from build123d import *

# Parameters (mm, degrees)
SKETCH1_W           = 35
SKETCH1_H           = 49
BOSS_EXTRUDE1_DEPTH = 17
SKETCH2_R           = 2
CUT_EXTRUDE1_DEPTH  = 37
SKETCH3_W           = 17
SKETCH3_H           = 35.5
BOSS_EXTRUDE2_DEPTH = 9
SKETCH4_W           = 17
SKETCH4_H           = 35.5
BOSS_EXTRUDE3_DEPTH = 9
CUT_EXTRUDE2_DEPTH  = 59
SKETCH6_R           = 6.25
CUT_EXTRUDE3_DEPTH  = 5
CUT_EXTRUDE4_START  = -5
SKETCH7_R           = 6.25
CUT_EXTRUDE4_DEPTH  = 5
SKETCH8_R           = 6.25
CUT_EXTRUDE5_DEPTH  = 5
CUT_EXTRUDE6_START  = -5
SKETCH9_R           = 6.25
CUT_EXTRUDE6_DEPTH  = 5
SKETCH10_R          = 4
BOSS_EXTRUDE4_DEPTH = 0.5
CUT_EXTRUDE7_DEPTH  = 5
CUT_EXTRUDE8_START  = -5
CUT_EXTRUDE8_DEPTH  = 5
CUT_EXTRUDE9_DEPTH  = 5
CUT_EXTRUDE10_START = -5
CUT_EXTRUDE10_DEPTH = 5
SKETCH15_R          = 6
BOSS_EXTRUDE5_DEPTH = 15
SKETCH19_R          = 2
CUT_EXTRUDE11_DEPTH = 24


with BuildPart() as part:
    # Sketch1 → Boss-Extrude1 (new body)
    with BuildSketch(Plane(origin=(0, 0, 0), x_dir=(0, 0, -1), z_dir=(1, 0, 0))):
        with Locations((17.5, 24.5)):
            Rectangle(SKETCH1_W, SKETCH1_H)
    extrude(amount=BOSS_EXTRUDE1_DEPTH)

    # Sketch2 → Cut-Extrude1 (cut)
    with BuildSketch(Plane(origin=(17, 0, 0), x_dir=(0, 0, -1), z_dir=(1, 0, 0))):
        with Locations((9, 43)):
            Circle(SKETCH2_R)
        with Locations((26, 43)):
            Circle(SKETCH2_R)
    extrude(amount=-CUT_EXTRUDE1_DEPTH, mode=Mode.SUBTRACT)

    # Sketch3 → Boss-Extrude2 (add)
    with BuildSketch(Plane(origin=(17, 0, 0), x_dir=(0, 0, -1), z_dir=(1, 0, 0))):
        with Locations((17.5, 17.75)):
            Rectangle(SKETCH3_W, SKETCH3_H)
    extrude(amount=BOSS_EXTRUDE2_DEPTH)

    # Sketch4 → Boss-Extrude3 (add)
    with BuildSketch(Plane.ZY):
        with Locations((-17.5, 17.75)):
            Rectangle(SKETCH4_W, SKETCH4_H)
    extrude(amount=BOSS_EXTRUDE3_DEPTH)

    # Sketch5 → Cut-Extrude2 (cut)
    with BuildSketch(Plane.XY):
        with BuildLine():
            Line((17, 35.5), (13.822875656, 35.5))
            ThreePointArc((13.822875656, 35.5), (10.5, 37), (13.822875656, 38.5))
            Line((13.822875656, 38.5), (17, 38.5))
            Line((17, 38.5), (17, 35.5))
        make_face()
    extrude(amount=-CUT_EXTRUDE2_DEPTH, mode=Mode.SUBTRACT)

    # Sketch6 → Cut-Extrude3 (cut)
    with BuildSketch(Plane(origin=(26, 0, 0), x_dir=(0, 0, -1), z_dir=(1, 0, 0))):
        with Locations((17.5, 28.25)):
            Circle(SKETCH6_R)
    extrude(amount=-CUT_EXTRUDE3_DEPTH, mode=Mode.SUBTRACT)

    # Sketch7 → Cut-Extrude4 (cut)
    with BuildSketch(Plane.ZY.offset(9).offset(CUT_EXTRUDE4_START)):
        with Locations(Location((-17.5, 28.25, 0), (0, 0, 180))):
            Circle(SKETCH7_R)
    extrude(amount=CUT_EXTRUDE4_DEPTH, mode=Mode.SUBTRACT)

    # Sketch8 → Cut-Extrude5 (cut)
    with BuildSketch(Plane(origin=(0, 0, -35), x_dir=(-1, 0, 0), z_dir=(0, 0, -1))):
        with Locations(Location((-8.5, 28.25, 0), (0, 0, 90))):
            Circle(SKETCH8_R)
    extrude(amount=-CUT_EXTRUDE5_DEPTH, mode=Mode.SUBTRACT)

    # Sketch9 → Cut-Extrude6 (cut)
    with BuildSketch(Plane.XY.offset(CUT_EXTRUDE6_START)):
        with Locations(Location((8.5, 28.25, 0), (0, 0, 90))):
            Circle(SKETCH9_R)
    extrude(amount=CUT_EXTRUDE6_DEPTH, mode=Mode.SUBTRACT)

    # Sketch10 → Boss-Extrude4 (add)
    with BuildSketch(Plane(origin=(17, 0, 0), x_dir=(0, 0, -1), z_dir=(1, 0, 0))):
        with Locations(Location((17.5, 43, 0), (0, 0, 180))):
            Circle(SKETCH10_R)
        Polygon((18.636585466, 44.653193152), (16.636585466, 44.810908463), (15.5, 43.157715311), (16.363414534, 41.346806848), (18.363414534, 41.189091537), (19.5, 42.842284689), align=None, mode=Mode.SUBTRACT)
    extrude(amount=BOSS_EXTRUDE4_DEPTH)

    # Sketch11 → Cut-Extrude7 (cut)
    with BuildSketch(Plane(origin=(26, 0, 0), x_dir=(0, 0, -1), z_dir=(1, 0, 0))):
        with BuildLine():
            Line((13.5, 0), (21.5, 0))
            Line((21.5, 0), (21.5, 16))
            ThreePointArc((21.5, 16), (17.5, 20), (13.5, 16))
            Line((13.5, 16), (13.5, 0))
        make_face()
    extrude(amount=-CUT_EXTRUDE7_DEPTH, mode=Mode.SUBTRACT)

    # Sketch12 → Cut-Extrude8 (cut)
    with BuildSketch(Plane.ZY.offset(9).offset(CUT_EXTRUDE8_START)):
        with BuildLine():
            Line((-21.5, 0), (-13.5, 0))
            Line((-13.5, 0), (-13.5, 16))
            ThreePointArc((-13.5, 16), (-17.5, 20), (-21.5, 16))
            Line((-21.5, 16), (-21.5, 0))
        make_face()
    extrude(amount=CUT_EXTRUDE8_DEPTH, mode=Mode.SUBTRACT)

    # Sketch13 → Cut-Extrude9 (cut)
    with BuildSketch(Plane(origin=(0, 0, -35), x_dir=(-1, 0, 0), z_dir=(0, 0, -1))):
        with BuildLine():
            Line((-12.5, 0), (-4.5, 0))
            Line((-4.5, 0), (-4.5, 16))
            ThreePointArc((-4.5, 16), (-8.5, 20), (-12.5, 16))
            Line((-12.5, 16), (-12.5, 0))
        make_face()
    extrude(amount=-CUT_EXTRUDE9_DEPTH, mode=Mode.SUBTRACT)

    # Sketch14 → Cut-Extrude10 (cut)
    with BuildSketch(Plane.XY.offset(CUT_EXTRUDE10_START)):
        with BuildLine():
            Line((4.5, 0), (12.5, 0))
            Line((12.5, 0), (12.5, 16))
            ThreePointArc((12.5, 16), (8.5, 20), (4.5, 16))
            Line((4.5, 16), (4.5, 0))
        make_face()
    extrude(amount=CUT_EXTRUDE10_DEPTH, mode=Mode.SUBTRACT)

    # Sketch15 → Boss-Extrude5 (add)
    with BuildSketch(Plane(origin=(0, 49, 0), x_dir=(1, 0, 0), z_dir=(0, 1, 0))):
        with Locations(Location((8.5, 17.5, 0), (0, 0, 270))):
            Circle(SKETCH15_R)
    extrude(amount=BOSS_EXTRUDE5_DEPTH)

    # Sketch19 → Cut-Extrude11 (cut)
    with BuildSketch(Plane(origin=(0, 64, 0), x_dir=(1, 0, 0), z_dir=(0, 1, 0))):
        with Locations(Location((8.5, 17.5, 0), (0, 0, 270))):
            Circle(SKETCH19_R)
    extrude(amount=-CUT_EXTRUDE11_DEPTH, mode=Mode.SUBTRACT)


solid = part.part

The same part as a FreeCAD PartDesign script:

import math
import FreeCAD as App
import Part
import Sketcher
from FreeCAD import Vector


def add_polygon(sketch, points):
    """Adds a closed chain of lines whose ends are joined by coincident constraints."""
    first, n = sketch.GeometryCount, len(points)
    for a, b in zip(points, points[1:] + points[:1]):
        sketch.addGeometry(Part.LineSegment(App.Vector(*a, 0), App.Vector(*b, 0)), False)
    for i in range(n):
        sketch.addConstraint(Sketcher.Constraint("Coincident", first + i, 2, first + (i + 1) % n, 1))

doc = App.newDocument("Part")
body = doc.addObject("PartDesign::Body", "Body")

sketch1 = body.newObject("Sketcher::SketchObject", "Sketch")
sketch1.AttachmentSupport = (doc.getObject("YZ_Plane"), [""])
sketch1.MapMode = "FlatFace"
add_polygon(sketch1, [(49, 0), (0, 0), (0, -35), (49, -35)])
sketch1.addConstraint([
    Sketcher.Constraint("Horizontal", 0),
    Sketcher.Constraint("Vertical", 1),
    Sketcher.Constraint("Horizontal", 2),
    Sketcher.Constraint("Vertical", 3),
    Sketcher.Constraint("Coincident", 0, 2, -1, 1),
    Sketcher.Constraint("DistanceX", 0, 2, 0, 1, 49.0),
    Sketcher.Constraint("DistanceY", 1, 2, 1, 1, 35.0),
])
pad1 = body.newObject("PartDesign::Pad", "Pad")
pad1.Profile = sketch1
pad1.Length = 17

sketch2 = body.newObject("Sketcher::SketchObject", "Sketch001")
sketch2.AttachmentSupport = (doc.getObject("YZ_Plane"), [""])
sketch2.MapMode = "FlatFace"
sketch2.AttachmentOffset = App.Placement(Vector(0, 0, 17), App.Rotation())
sketch2.addGeometry([
    Part.Circle(Vector(43, -9, 0), Vector(0, 0, 1), 2),
    Part.Circle(Vector(43, -26, 0), Vector(0, 0, 1), 2),
], False)
sketch2.addConstraint([
    Sketcher.Constraint("Equal", 0, 1),
    Sketcher.Constraint("Vertical", 0, 3, 1, 3),
    Sketcher.Constraint("Diameter", 0, 4.0),
    Sketcher.Constraint("DistanceX", -1, 1, 0, 3, 43.0),
    Sketcher.Constraint("DistanceY", 0, 3, -1, 1, 9.0),
    Sketcher.Constraint("DistanceY", 1, 3, -1, 1, 26.0),
])
pocket1 = body.newObject("PartDesign::Pocket", "Pocket")
pocket1.Profile = sketch2
pocket1.Length = 37

sketch3 = body.newObject("Sketcher::SketchObject", "Sketch002")
sketch3.AttachmentSupport = (doc.getObject("YZ_Plane"), [""])
sketch3.MapMode = "FlatFace"
sketch3.AttachmentOffset = App.Placement(Vector(0, 0, 17), App.Rotation())
add_polygon(sketch3, [(35.5, -9), (0, -9), (0, -26), (35.5, -26)])
sketch3.addConstraint([
    Sketcher.Constraint("Horizontal", 0),
    Sketcher.Constraint("Vertical", 1),
    Sketcher.Constraint("Horizontal", 2),
    Sketcher.Constraint("Vertical", 3),
    Sketcher.Constraint("PointOnObject", 0, 2, -2),
    Sketcher.Constraint("DistanceY", 1, 2, 1, 1, 17.0),
    Sketcher.Constraint("DistanceX", 0, 2, 0, 1, 35.5),
    Sketcher.Constraint("DistanceY", 0, 2, -1, 1, 9.0),
])
pad2 = body.newObject("PartDesign::Pad", "Pad001")
pad2.Profile = sketch3
pad2.Length = 9

sketch4 = body.newObject("Sketcher::SketchObject", "Sketch003")
sketch4.AttachmentSupport = (doc.getObject("YZ_Plane"), [""])
sketch4.MapMode = "FlatFace"
add_polygon(sketch4, [(35.5, -26), (0, -26), (0, -9), (35.5, -9)])
sketch4.addConstraint([
    Sketcher.Constraint("Horizontal", 0),
    Sketcher.Constraint("Vertical", 1),
    Sketcher.Constraint("Horizontal", 2),
    Sketcher.Constraint("Vertical", 3),
    Sketcher.Constraint("PointOnObject", 0, 2, -2),
    Sketcher.Constraint("DistanceY", 1, 1, 1, 2, 17.0),
    Sketcher.Constraint("DistanceX", 0, 2, 0, 1, 35.5),
    Sketcher.Constraint("DistanceY", 0, 2, -1, 1, 26.0),
])
pad3 = body.newObject("PartDesign::Pad", "Pad002")
pad3.Profile = sketch4
pad3.Length = 9
pad3.Reversed = True

sketch5 = body.newObject("Sketcher::SketchObject", "Sketch004")
sketch5.AttachmentSupport = (doc.getObject("XY_Plane"), [""])
sketch5.MapMode = "FlatFace"
sketch5.addGeometry([
    Part.LineSegment(Vector(13.822876, 35.5, 0), Vector(17, 35.5, 0)),
    Part.LineSegment(Vector(17, 35.5, 0), Vector(17, 38.5, 0)),
    Part.LineSegment(Vector(17, 38.5, 0), Vector(13.822876, 38.5, 0)),
    Part.ArcOfCircle(Part.Circle(Vector(12.5, 37, 0), Vector(0, 0, 1), 2), math.radians(48.590378), math.radians(311.409622)),
], False)
sketch5.addConstraint([
    Sketcher.Constraint("Coincident", 0, 2, 1, 1),
    Sketcher.Constraint("Coincident", 1, 2, 2, 1),
    Sketcher.Constraint("Coincident", 2, 2, 3, 1),
    Sketcher.Constraint("Coincident", 3, 2, 0, 1),
    Sketcher.Constraint("Horizontal", 0),
    Sketcher.Constraint("Vertical", 1),
    Sketcher.Constraint("Horizontal", 2),
    Sketcher.Constraint("Vertical", 2, 2, 3, 2),
    Sketcher.Constraint("Radius", 3, 2.0),
    Sketcher.Constraint("DistanceY", 1, 1, 1, 2, 3.0),
    Sketcher.Constraint("DistanceY", -1, 1, 3, 3, 37.0),
    Sketcher.Constraint("DistanceX", -1, 1, 0, 2, 17.0),
    Sketcher.Constraint("DistanceX", -1, 1, 3, 3, 12.5),
])
pocket2 = body.newObject("PartDesign::Pocket", "Pocket001")
pocket2.Profile = sketch5
pocket2.Length = 59

sketch6 = body.newObject("Sketcher::SketchObject", "Sketch005")
sketch6.AttachmentSupport = (doc.getObject("YZ_Plane"), [""])
sketch6.MapMode = "FlatFace"
sketch6.AttachmentOffset = App.Placement(Vector(0, 0, 26), App.Rotation())
sketch6.addGeometry(Part.Circle(Vector(28.25, -17.5, 0), Vector(0, 0, 1), 6.25), False)
sketch6.addConstraint([
    Sketcher.Constraint("Diameter", 0, 12.5),
    Sketcher.Constraint("DistanceY", 0, 3, -1, 1, 17.5),
    Sketcher.Constraint("DistanceX", -1, 1, 0, 3, 28.25),
])
pocket3 = body.newObject("PartDesign::Pocket", "Pocket002")
pocket3.Profile = sketch6
pocket3.Length = 5

sketch7 = body.newObject("Sketcher::SketchObject", "Sketch006")
sketch7.AttachmentSupport = (doc.getObject("YZ_Plane"), [""])
sketch7.MapMode = "FlatFace"
sketch7.AttachmentOffset = App.Placement(Vector(0, 0, -4), App.Rotation())
sketch7.addGeometry(Part.Circle(Vector(28.25, -17.5, 0), Vector(0, 0, 1), 6.25), False)
sketch7.addConstraint([
    Sketcher.Constraint("Diameter", 0, 12.5),
    Sketcher.Constraint("DistanceY", 0, 3, -1, 1, 17.5),
    Sketcher.Constraint("DistanceX", -1, 1, 0, 3, 28.25),
])
pocket4 = body.newObject("PartDesign::Pocket", "Pocket003")
pocket4.Profile = sketch7
pocket4.Length = 5

sketch8 = body.newObject("Sketcher::SketchObject", "Sketch007")
sketch8.AttachmentSupport = (doc.getObject("XY_Plane"), [""])
sketch8.MapMode = "FlatFace"
sketch8.AttachmentOffset = App.Placement(Vector(0, 0, -35), App.Rotation())
sketch8.addGeometry(Part.Circle(Vector(8.5, 28.25, 0), Vector(0, 0, 1), 6.25), False)
sketch8.addConstraint([
    Sketcher.Constraint("Diameter", 0, 12.5),
    Sketcher.Constraint("DistanceX", -1, 1, 0, 3, 8.5),
    Sketcher.Constraint("DistanceY", -1, 1, 0, 3, 28.25),
])
pocket5 = body.newObject("PartDesign::Pocket", "Pocket004")
pocket5.Profile = sketch8
pocket5.Length = 5
pocket5.Reversed = True

sketch9 = body.newObject("Sketcher::SketchObject", "Sketch008")
sketch9.AttachmentSupport = (doc.getObject("XY_Plane"), [""])
sketch9.MapMode = "FlatFace"
sketch9.AttachmentOffset = App.Placement(Vector(0, 0, -5), App.Rotation())
sketch9.addGeometry(Part.Circle(Vector(8.5, 28.25, 0), Vector(0, 0, 1), 6.25), False)
sketch9.addConstraint([
    Sketcher.Constraint("Diameter", 0, 12.5),
    Sketcher.Constraint("DistanceX", -1, 1, 0, 3, 8.5),
    Sketcher.Constraint("DistanceY", -1, 1, 0, 3, 28.25),
])
pocket6 = body.newObject("PartDesign::Pocket", "Pocket005")
pocket6.Profile = sketch9
pocket6.Length = 5
pocket6.Reversed = True

sketch10 = body.newObject("Sketcher::SketchObject", "Sketch009")
sketch10.AttachmentSupport = (doc.getObject("YZ_Plane"), [""])
sketch10.MapMode = "FlatFace"
sketch10.AttachmentOffset = App.Placement(Vector(0, 0, 17), App.Rotation())
sketch10.addGeometry(Part.Circle(Vector(43, -17.5, 0), Vector(0, 0, 1), 4), False)
add_polygon(sketch10, [(44.810908, -16.636585), (44.653193, -18.636585), (42.842285, -19.5), (41.189092, -18.363415), (41.346807, -16.363415), (43.157715, -15.5)])
sketch10.addConstraint([
    Sketcher.Constraint("Parallel", 1, 4),
    Sketcher.Constraint("Parallel", 2, 5),
    Sketcher.Constraint("Parallel", 3, 6),
    Sketcher.Constraint("Equal", 1, 2),
    Sketcher.Constraint("Equal", 2, 3),
    Sketcher.Constraint("Equal", 3, 4),
    Sketcher.Constraint("Diameter", 0, 8.0),
    Sketcher.Constraint("DistanceX", -1, 1, 0, 3, 43.0),
    Sketcher.Constraint("DistanceY", 2, 2, 0, 3, 2.0),
    Sketcher.Constraint("DistanceY", 3, 2, 4, 2, 2.0),
    Sketcher.Constraint("DistanceY", 0, 3, 5, 2, 2.0),
    Sketcher.Constraint("DistanceY", 0, 3, -1, 1, 17.5),
    Sketcher.Constraint("DistanceX", 3, 2, 1, 2, 3.464102),
    Sketcher.Constraint("Distance", 1, 2.006209),
    Sketcher.Constraint("DistanceX", -1, 1, 3, 2, 41.189092),
])
pad4 = body.newObject("PartDesign::Pad", "Pad003")
pad4.Profile = sketch10
pad4.Length = 0.5

sketch11 = body.newObject("Sketcher::SketchObject", "Sketch010")
sketch11.AttachmentSupport = (doc.getObject("YZ_Plane"), [""])
sketch11.MapMode = "FlatFace"
sketch11.AttachmentOffset = App.Placement(Vector(0, 0, 26), App.Rotation())
sketch11.addGeometry([
    Part.LineSegment(Vector(0, -13.5, 0), Vector(0, -21.5, 0)),
    Part.LineSegment(Vector(0, -21.5, 0), Vector(16, -21.5, 0)),
    Part.ArcOfCircle(Part.Circle(Vector(16, -17.5, 0), Vector(0, 0, 1), 4), math.radians(-90), math.radians(90)),
    Part.LineSegment(Vector(16, -13.5, 0), Vector(0, -13.5, 0)),
], False)
sketch11.addConstraint([
    Sketcher.Constraint("Coincident", 0, 2, 1, 1),
    Sketcher.Constraint("Tangent", 1, 2, 2, 1),
    Sketcher.Constraint("Tangent", 2, 2, 3, 1),
    Sketcher.Constraint("Coincident", 3, 2, 0, 1),
    Sketcher.Constraint("Vertical", 0),
    Sketcher.Constraint("Horizontal", 1),
    Sketcher.Constraint("Horizontal", 3),
    Sketcher.Constraint("PointOnObject", 0, 2, -2),
    Sketcher.Constraint("Radius", 2, 4.0),
    Sketcher.Constraint("DistanceX", 1, 1, 1, 2, 16.0),
    Sketcher.Constraint("DistanceY", 2, 3, -1, 1, 17.5),
])
pocket7 = body.newObject("PartDesign::Pocket", "Pocket006")
pocket7.Profile = sketch11
pocket7.Length = 5

sketch12 = body.newObject("Sketcher::SketchObject", "Sketch011")
sketch12.AttachmentSupport = (doc.getObject("YZ_Plane"), [""])
sketch12.MapMode = "FlatFace"
sketch12.AttachmentOffset = App.Placement(Vector(0, 0, -4), App.Rotation())
sketch12.addGeometry([
    Part.LineSegment(Vector(0, -21.5, 0), Vector(0, -13.5, 0)),
    Part.LineSegment(Vector(0, -13.5, 0), Vector(16, -13.5, 0)),
    Part.ArcOfCircle(Part.Circle(Vector(16, -17.5, 0), Vector(0, 0, 1), 4), math.radians(-90), math.radians(90)),
    Part.LineSegment(Vector(16, -21.5, 0), Vector(0, -21.5, 0)),
], False)
sketch12.addConstraint([
    Sketcher.Constraint("Coincident", 0, 2, 1, 1),
    Sketcher.Constraint("Tangent", 1, 2, 2, 2),
    Sketcher.Constraint("Tangent", 2, 1, 3, 1),
    Sketcher.Constraint("Coincident", 3, 2, 0, 1),
    Sketcher.Constraint("Vertical", 0),
    Sketcher.Constraint("Horizontal", 1),
    Sketcher.Constraint("Horizontal", 3),
    Sketcher.Constraint("PointOnObject", 0, 2, -2),
    Sketcher.Constraint("Radius", 2, 4.0),
    Sketcher.Constraint("DistanceX", 1, 1, 1, 2, 16.0),
    Sketcher.Constraint("DistanceY", 2, 3, -1, 1, 17.5),
])
pocket8 = body.newObject("PartDesign::Pocket", "Pocket007")
pocket8.Profile = sketch12
pocket8.Length = 5

sketch13 = body.newObject("Sketcher::SketchObject", "Sketch012")
sketch13.AttachmentSupport = (doc.getObject("XY_Plane"), [""])
sketch13.MapMode = "FlatFace"
sketch13.AttachmentOffset = App.Placement(Vector(0, 0, -35), App.Rotation())
sketch13.addGeometry([
    Part.LineSegment(Vector(12.5, 0, 0), Vector(4.5, 0, 0)),
    Part.LineSegment(Vector(4.5, 0, 0), Vector(4.5, 16, 0)),
    Part.ArcOfCircle(Part.Circle(Vector(8.5, 16, 0), Vector(0, 0, 1), 4), math.radians(0), math.radians(180)),
    Part.LineSegment(Vector(12.5, 16, 0), Vector(12.5, 0, 0)),
], False)
sketch13.addConstraint([
    Sketcher.Constraint("Coincident", 0, 2, 1, 1),
    Sketcher.Constraint("Tangent", 1, 2, 2, 2),
    Sketcher.Constraint("Tangent", 2, 1, 3, 1),
    Sketcher.Constraint("Coincident", 3, 2, 0, 1),
    Sketcher.Constraint("Horizontal", 0),
    Sketcher.Constraint("Vertical", 1),
    Sketcher.Constraint("Vertical", 3),
    Sketcher.Constraint("PointOnObject", 0, 2, -1),
    Sketcher.Constraint("Radius", 2, 4.0),
    Sketcher.Constraint("DistanceY", 1, 1, 1, 2, 16.0),
    Sketcher.Constraint("DistanceX", -1, 1, 2, 3, 8.5),
])
pocket9 = body.newObject("PartDesign::Pocket", "Pocket008")
pocket9.Profile = sketch13
pocket9.Length = 5
pocket9.Reversed = True

sketch14 = body.newObject("Sketcher::SketchObject", "Sketch013")
sketch14.AttachmentSupport = (doc.getObject("XY_Plane"), [""])
sketch14.MapMode = "FlatFace"
sketch14.AttachmentOffset = App.Placement(Vector(0, 0, -5), App.Rotation())
sketch14.addGeometry([
    Part.LineSegment(Vector(4.5, 0, 0), Vector(12.5, 0, 0)),
    Part.LineSegment(Vector(12.5, 0, 0), Vector(12.5, 16, 0)),
    Part.ArcOfCircle(Part.Circle(Vector(8.5, 16, 0), Vector(0, 0, 1), 4), math.radians(0), math.radians(180)),
    Part.LineSegment(Vector(4.5, 16, 0), Vector(4.5, 0, 0)),
], False)
sketch14.addConstraint([
    Sketcher.Constraint("Coincident", 0, 2, 1, 1),
    Sketcher.Constraint("Tangent", 1, 2, 2, 1),
    Sketcher.Constraint("Tangent", 2, 2, 3, 1),
    Sketcher.Constraint("Coincident", 3, 2, 0, 1),
    Sketcher.Constraint("Horizontal", 0),
    Sketcher.Constraint("Vertical", 1),
    Sketcher.Constraint("Vertical", 3),
    Sketcher.Constraint("PointOnObject", 0, 2, -1),
    Sketcher.Constraint("Radius", 2, 4.0),
    Sketcher.Constraint("DistanceY", 1, 1, 1, 2, 16.0),
    Sketcher.Constraint("DistanceX", -1, 1, 2, 3, 8.5),
])
pocket10 = body.newObject("PartDesign::Pocket", "Pocket009")
pocket10.Profile = sketch14
pocket10.Length = 5
pocket10.Reversed = True

sketch15 = body.newObject("Sketcher::SketchObject", "Sketch014")
sketch15.AttachmentSupport = (doc.getObject("XZ_Plane"), [""])
sketch15.MapMode = "FlatFace"
sketch15.AttachmentOffset = App.Placement(Vector(0, 0, -49), App.Rotation())
sketch15.addGeometry(Part.Circle(Vector(8.5, -17.5, 0), Vector(0, 0, 1), 6), False)
sketch15.addConstraint([
    Sketcher.Constraint("Diameter", 0, 12.0),
    Sketcher.Constraint("DistanceX", -1, 1, 0, 3, 8.5),
    Sketcher.Constraint("DistanceY", 0, 3, -1, 1, 17.5),
])
pad5 = body.newObject("PartDesign::Pad", "Pad004")
pad5.Profile = sketch15
pad5.Length = 15
pad5.Reversed = True

sketch16 = body.newObject("Sketcher::SketchObject", "Sketch015")
sketch16.AttachmentSupport = (doc.getObject("XZ_Plane"), [""])
sketch16.MapMode = "FlatFace"
sketch16.AttachmentOffset = App.Placement(Vector(0, 0, -64), App.Rotation())
sketch16.addGeometry(Part.Circle(Vector(8.5, -17.5, 0), Vector(0, 0, 1), 2), False)
sketch16.addConstraint([
    Sketcher.Constraint("Diameter", 0, 4.0),
    Sketcher.Constraint("DistanceX", -1, 1, 0, 3, 8.5),
    Sketcher.Constraint("DistanceY", 0, 3, -1, 1, 17.5),
])
pocket11 = body.newObject("PartDesign::Pocket", "Pocket010")
pocket11.Profile = sketch16
pocket11.Length = 24
pocket11.Reversed = True

doc.recompute()
